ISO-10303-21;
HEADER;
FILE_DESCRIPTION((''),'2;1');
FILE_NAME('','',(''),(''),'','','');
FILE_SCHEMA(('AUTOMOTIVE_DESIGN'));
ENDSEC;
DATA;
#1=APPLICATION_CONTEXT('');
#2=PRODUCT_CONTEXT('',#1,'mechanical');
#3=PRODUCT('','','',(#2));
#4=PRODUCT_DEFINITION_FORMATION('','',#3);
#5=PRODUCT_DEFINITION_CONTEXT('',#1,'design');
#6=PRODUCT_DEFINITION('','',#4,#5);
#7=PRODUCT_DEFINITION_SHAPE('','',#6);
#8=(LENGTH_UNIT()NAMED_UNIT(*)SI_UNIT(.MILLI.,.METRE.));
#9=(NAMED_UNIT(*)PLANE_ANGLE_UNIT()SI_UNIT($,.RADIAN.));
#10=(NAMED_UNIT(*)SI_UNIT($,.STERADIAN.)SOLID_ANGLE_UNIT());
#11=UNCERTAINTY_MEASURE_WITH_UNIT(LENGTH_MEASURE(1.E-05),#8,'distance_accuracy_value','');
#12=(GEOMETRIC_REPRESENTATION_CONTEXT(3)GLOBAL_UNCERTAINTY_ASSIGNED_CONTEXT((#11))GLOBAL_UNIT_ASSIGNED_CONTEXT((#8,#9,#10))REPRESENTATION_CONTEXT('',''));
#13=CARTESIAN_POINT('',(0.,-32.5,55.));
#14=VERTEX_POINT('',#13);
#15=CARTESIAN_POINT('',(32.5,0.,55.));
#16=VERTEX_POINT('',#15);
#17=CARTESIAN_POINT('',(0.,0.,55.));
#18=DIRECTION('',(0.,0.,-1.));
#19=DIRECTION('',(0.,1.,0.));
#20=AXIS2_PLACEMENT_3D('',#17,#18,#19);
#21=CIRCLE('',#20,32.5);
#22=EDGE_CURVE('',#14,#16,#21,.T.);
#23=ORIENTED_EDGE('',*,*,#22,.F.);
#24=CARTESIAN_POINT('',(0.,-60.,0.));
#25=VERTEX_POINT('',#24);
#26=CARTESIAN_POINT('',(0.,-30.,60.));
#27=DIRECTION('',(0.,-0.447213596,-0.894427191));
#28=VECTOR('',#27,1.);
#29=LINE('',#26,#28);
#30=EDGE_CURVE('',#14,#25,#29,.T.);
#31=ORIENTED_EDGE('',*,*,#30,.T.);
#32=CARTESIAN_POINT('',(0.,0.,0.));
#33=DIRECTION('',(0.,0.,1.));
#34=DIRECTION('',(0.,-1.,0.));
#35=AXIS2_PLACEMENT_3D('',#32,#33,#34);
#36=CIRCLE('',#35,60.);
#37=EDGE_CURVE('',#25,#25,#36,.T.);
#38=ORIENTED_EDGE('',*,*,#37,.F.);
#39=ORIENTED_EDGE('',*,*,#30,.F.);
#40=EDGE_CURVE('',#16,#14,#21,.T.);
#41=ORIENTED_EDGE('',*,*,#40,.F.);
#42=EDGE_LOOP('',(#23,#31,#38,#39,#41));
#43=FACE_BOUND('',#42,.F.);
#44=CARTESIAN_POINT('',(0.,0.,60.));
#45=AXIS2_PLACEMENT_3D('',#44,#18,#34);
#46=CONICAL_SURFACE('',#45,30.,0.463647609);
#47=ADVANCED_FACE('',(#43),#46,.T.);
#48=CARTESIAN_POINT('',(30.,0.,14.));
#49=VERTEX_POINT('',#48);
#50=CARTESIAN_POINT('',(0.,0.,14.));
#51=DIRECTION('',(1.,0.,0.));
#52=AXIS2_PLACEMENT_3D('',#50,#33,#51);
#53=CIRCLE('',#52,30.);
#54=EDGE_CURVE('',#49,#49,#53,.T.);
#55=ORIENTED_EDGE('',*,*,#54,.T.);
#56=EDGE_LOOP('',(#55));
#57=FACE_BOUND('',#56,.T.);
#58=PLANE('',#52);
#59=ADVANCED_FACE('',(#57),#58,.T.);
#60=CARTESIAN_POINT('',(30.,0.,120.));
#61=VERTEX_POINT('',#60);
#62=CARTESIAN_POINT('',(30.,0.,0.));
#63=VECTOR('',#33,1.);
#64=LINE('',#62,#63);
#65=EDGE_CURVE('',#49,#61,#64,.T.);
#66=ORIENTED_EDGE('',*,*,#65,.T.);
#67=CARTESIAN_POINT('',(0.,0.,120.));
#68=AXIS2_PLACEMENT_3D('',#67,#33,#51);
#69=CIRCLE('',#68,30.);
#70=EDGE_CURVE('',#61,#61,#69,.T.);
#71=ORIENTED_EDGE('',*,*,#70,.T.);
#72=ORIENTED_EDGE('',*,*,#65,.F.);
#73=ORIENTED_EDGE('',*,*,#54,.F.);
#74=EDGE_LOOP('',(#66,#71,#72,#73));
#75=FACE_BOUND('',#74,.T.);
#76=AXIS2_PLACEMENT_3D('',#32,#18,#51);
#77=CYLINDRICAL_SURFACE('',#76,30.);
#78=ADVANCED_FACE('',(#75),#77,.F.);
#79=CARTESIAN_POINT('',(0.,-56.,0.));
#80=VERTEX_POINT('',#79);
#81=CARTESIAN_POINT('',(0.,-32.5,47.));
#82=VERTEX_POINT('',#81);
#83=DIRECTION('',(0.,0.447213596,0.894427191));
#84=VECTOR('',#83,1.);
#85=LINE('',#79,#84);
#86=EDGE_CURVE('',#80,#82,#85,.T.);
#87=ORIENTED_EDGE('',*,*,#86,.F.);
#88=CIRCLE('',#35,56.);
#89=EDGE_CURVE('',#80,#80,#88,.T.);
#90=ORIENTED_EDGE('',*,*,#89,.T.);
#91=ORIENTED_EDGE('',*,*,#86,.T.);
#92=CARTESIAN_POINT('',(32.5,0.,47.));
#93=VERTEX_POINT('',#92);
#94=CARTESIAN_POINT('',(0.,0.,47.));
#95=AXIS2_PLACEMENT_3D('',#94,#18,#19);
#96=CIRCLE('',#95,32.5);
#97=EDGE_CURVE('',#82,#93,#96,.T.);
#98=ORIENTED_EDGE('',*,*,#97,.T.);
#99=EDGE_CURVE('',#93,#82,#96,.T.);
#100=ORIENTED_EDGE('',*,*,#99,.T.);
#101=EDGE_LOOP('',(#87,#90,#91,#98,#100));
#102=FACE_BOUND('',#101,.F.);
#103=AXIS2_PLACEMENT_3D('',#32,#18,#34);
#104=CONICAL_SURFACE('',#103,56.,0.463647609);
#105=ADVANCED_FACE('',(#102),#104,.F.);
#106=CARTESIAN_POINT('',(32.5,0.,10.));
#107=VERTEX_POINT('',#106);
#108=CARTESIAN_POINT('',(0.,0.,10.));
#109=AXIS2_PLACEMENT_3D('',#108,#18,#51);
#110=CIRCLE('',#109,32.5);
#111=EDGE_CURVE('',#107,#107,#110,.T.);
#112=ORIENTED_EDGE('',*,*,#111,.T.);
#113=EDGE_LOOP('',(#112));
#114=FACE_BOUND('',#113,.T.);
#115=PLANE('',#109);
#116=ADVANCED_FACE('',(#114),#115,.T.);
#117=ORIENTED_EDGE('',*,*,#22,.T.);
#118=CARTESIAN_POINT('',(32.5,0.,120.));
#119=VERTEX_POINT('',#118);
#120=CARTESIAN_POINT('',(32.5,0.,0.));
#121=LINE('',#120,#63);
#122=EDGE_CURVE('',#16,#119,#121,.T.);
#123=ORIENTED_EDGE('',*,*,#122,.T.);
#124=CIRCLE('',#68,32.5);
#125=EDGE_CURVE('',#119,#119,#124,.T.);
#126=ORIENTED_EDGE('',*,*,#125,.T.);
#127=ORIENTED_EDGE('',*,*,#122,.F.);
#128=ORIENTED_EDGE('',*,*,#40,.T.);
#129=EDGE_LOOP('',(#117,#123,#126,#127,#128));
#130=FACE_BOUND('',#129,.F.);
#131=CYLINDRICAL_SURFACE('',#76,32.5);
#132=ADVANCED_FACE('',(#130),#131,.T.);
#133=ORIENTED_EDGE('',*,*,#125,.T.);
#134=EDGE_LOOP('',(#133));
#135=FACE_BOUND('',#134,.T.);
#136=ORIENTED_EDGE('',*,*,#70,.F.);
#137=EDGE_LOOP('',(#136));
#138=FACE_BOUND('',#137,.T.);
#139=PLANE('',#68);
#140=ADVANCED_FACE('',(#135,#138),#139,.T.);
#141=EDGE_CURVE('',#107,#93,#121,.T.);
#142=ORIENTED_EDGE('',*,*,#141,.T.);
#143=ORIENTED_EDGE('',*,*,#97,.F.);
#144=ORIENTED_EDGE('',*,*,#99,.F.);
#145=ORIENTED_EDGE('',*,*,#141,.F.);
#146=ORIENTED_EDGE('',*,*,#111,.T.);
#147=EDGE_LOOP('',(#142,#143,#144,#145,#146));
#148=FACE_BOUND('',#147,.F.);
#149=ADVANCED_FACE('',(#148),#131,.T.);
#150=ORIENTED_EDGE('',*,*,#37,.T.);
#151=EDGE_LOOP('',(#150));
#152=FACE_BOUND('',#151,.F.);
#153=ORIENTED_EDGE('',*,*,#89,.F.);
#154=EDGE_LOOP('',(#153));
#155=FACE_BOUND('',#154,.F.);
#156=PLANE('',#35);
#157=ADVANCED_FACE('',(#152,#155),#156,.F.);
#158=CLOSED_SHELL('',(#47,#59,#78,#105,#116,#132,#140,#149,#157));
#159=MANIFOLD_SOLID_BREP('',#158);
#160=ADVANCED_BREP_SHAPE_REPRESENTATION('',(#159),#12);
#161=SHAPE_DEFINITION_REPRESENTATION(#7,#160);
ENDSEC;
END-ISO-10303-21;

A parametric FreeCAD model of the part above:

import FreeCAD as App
import Part
import Sketcher
from FreeCAD import Vector


def add_polygon(sketch, points):
    """Adds a closed chain of lines whose ends are joined by coincident constraints."""
    first, n = sketch.GeometryCount, len(points)
    for a, b in zip(points, points[1:] + points[:1]):
        sketch.addGeometry(Part.LineSegment(App.Vector(*a, 0), App.Vector(*b, 0)), False)
    for i in range(n):
        sketch.addConstraint(Sketcher.Constraint("Coincident", first + i, 2, first + (i + 1) % n, 1))

doc = App.newDocument("Part")
body = doc.addObject("PartDesign::Body", "Body")

# Sketch on XY plane
sketch1 = doc.addObject("Sketcher::SketchObject", "Sketch")
body.addObject(sketch1)
sketch1.AttachmentSupport = (doc.XY_Plane, [""])
sketch1.MapMode = "FlatFace"
sketch1.addGeometry(Part.Circle(Vector(0, 0, 0), Vector(0, 0, 1), 32.5), False)
sketch1.addGeometry(Part.Circle(Vector(0, 0, 0), Vector(0, 0, 1), 30), False)
sketch1.addConstraint(Sketcher.Constraint("Coincident", 0, 3, -1, 1))
sketch1.addConstraint(Sketcher.Constraint("Coincident", 1, 3, -1, 1))
sketch1.addConstraint(Sketcher.Constraint("Diameter", 0, 65.0))
sketch1.addConstraint(Sketcher.Constraint("Diameter", 1, 60.0))
pad1 = doc.addObject("PartDesign::Pad", "Pad")
body.addObject(pad1)
pad1.Profile = sketch1
pad1.Length = 120

# Sketch on YZ plane
sketch2 = doc.addObject("Sketcher::SketchObject", "Sketch001")
body.addObject(sketch2)
sketch2.AttachmentSupport = (doc.YZ_Plane, [""])
sketch2.MapMode = "FlatFace"
add_polygon(sketch2, [(-56, 0), (-30, 52), (-30, 60), (-60, 0)])  # lines 0-3
sketch2.addConstraint(Sketcher.Constraint("Vertical", 1))
sketch2.addConstraint(Sketcher.Constraint("Horizontal", 3))
sketch2.addConstraint(Sketcher.Constraint("PointOnObject", 2, 2, -1))
sketch2.addConstraint(Sketcher.Constraint("Parallel", 0, 2))
sketch2.addConstraint(Sketcher.Constraint("DistanceX", 3, 1, 3, 2, 4.0))
sketch2.addConstraint(Sketcher.Constraint("DistanceY", 1, 1, 1, 2, 8.0))
sketch2.addConstraint(Sketcher.Constraint("DistanceX", 0, 2, -1, 1, 30.0))
sketch2.addConstraint(Sketcher.Constraint("DistanceY", -1, 1, 0, 2, 52.0))
revolution = doc.addObject("PartDesign::Revolution", "Revolution")
body.addObject(revolution)
revolution.Profile = sketch2
revolution.ReferenceAxis = (sketch2, ["V_Axis"])
revolution.Angle = 360

# Sketch on XY plane
sketch3 = doc.addObject("Sketcher::SketchObject", "Sketch002")
body.addObject(sketch3)
sketch3.AttachmentSupport = (doc.XY_Plane, [""])
sketch3.MapMode = "FlatFace"
sketch3.addGeometry(Part.Circle(Vector(0, 0, 0), Vector(0, 0, 1), 32.5), False)
sketch3.addGeometry(Part.Circle(Vector(0, 0, 0), Vector(0, 0, 1), 30), False)
sketch3.addConstraint(Sketcher.Constraint("Coincident", 0, 3, -1, 1))
sketch3.addConstraint(Sketcher.Constraint("Coincident", 1, 3, -1, 1))
sketch3.addConstraint(Sketcher.Constraint("Diameter", 0, 65.0))
sketch3.addConstraint(Sketcher.Constraint("Diameter", 1, 60.0))
pocket1 = doc.addObject("PartDesign::Pocket", "Pocket")
body.addObject(pocket1)
pocket1.Profile = sketch3
pocket1.Length = 10
pocket1.Reversed = True

# Sketch on XY plane
sketch4 = doc.addObject("Sketcher::SketchObject", "Sketch003")
body.addObject(sketch4)
sketch4.AttachmentSupport = (doc.XY_Plane, [""])
sketch4.MapMode = "FlatFace"
sketch4.addGeometry(Part.Circle(Vector(0, 0, 0), Vector(0, 0, 1), 30), False)
sketch4.addConstraint(Sketcher.Constraint("Coincident", 0, 3, -1, 1))
sketch4.addConstraint(Sketcher.Constraint("Diameter", 0, 60.0))
pad2 = doc.addObject("PartDesign::Pad", "Pad001")
body.addObject(pad2)
pad2.Profile = sketch4
pad2.Length = 14

# Sketch on XY plane
sketch5 = doc.addObject("Sketcher::SketchObject", "Sketch004")
body.addObject(sketch5)
sketch5.AttachmentSupport = (doc.XY_Plane, [""])
sketch5.MapMode = "FlatFace"
sketch5.addGeometry(Part.Circle(Vector(0, 0, 0), Vector(0, 0, 1), 30), False)
sketch5.addConstraint(Sketcher.Constraint("Coincident", 0, 3, -1, 1))
sketch5.addConstraint(Sketcher.Constraint("Diameter", 0, 60.0))
pocket2 = doc.addObject("PartDesign::Pocket", "Pocket001")
body.addObject(pocket2)
pocket2.Profile = sketch5
pocket2.Length = 10
pocket2.Reversed = True

doc.recompute()
